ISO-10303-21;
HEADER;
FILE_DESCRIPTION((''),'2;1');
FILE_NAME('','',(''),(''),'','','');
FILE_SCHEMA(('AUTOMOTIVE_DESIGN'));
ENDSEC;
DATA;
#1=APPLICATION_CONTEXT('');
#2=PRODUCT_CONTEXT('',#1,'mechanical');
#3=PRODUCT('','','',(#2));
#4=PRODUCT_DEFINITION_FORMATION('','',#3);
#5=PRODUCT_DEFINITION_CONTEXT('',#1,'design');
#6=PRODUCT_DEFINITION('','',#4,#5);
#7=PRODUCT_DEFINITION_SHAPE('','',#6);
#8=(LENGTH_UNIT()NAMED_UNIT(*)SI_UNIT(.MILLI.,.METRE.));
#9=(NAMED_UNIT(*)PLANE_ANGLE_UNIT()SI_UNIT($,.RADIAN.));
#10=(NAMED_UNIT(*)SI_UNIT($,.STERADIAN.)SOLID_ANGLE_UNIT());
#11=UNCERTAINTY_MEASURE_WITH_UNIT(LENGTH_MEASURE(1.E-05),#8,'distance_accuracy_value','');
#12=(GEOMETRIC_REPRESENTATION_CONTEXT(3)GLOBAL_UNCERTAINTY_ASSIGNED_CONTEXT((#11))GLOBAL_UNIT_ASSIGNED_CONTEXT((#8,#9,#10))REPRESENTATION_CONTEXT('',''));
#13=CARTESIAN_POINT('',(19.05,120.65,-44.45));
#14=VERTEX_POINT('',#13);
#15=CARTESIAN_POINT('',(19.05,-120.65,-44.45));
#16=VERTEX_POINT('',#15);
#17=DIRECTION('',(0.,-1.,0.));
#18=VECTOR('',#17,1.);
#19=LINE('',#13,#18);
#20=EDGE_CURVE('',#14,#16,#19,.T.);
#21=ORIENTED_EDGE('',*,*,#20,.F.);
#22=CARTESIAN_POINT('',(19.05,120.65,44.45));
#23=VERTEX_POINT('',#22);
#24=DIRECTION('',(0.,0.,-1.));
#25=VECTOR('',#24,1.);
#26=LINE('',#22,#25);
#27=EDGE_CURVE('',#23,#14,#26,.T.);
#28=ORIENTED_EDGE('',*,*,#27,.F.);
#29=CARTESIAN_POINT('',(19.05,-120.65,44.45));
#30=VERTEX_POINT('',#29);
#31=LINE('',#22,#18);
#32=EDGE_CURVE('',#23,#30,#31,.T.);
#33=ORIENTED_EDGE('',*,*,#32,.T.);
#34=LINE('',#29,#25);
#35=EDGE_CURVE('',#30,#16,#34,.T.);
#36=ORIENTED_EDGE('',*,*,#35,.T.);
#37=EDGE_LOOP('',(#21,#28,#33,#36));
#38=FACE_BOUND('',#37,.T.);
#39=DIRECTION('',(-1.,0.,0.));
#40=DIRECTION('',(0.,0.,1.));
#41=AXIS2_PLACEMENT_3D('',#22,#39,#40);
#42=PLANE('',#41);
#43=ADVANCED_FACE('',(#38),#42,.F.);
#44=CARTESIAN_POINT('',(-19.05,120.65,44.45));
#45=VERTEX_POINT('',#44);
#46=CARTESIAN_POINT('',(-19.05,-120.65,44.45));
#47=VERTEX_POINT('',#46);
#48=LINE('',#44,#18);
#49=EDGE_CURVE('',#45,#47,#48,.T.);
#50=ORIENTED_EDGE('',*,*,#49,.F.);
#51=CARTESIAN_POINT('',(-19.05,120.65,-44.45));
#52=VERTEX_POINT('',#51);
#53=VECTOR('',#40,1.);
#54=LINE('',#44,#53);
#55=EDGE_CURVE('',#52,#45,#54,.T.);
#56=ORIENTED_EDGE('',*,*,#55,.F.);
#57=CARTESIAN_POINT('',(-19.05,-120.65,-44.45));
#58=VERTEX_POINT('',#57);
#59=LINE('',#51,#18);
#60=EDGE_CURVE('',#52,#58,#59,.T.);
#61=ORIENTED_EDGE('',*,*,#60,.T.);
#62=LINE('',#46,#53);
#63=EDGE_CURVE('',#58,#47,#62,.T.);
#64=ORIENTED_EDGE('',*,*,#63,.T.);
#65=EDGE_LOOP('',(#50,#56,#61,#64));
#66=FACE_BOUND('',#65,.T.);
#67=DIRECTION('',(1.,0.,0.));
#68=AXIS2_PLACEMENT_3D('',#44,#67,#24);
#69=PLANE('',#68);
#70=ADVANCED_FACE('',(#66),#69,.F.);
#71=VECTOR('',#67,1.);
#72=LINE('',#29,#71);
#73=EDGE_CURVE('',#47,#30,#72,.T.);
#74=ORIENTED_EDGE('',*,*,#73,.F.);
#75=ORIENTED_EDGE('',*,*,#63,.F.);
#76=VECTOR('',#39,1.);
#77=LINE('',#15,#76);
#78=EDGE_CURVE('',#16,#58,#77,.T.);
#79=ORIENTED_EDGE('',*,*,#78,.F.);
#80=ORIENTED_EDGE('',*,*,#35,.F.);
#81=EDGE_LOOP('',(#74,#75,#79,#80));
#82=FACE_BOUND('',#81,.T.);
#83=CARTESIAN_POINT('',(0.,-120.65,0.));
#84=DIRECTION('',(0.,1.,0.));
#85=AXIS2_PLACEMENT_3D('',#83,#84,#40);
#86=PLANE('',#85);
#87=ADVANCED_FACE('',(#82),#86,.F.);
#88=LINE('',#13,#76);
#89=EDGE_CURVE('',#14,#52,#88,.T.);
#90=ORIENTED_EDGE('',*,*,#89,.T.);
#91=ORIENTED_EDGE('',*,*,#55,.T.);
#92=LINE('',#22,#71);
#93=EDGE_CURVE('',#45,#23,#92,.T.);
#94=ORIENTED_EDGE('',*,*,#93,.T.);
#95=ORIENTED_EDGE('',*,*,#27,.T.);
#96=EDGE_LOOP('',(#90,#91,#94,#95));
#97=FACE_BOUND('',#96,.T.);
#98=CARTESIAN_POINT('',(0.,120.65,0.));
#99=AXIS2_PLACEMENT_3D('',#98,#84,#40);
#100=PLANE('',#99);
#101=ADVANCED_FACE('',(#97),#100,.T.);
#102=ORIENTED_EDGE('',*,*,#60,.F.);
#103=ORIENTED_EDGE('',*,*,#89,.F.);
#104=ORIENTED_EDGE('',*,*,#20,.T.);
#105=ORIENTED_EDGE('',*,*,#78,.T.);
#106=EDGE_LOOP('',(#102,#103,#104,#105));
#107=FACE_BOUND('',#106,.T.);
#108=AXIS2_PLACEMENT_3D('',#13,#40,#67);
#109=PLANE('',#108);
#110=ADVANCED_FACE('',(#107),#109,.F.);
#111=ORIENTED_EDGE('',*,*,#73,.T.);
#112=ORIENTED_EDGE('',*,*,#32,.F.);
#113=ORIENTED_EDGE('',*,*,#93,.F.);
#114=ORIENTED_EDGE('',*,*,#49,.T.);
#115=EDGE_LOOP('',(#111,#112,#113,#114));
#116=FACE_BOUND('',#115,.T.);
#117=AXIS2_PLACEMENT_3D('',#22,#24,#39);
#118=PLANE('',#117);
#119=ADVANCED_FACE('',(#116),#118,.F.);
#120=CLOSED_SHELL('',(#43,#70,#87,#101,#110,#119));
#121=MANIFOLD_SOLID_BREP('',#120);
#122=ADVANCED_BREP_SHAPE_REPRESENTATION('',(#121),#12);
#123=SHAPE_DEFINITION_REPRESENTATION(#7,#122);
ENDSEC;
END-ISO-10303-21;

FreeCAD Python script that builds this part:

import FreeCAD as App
import Part
import Sketcher

V = App.Vector
Q = App.Units.Quantity


def add_polygon(sketch, points):
    """Adds a closed chain of lines whose ends are joined by coincident constraints."""
    first, n = sketch.GeometryCount, len(points)
    for a, b in zip(points, points[1:] + points[:1]):
        sketch.addGeometry(Part.LineSegment(App.Vector(*a, 0), App.Vector(*b, 0)), False)
    for i in range(n):
        sketch.addConstraint(Sketcher.Constraint("Coincident", first + i, 2, first + (i + 1) % n, 1))

doc = App.newDocument("Part")
body = doc.addObject("PartDesign::Body", "Body")

# Sketch on XZ plane
sketch1 = doc.addObject("Sketcher::SketchObject", "Sketch")
body.addObject(sketch1)
sketch1.AttachmentSupport = (doc.XZ_Plane, [""])
sketch1.MapMode = "FlatFace"
add_polygon(sketch1, [(-19, -44), (-19, 44), (19, 44), (19, -44)])  # lines 0-3
sketch1.addConstraint([
    Sketcher.Constraint("Vertical", 0),
    Sketcher.Constraint("Horizontal", 1),
    Sketcher.Constraint("Vertical", 2),
    Sketcher.Constraint("Horizontal", 3),
    Sketcher.Constraint("Symmetric", 0, 2, 2, 2, -1, 1),
    Sketcher.Constraint("DistanceX", 1, 1, 1, 2, Q("1.5 in")),
    Sketcher.Constraint("DistanceY", 0, 1, 0, 2, Q("3.5 in")),
])
pad1 = doc.addObject("PartDesign::Pad", "Pad")
body.addObject(pad1)
pad1.Profile = sketch1
pad1.Length = Q("9.5 in")
pad1.Midplane = True

doc.recompute()
